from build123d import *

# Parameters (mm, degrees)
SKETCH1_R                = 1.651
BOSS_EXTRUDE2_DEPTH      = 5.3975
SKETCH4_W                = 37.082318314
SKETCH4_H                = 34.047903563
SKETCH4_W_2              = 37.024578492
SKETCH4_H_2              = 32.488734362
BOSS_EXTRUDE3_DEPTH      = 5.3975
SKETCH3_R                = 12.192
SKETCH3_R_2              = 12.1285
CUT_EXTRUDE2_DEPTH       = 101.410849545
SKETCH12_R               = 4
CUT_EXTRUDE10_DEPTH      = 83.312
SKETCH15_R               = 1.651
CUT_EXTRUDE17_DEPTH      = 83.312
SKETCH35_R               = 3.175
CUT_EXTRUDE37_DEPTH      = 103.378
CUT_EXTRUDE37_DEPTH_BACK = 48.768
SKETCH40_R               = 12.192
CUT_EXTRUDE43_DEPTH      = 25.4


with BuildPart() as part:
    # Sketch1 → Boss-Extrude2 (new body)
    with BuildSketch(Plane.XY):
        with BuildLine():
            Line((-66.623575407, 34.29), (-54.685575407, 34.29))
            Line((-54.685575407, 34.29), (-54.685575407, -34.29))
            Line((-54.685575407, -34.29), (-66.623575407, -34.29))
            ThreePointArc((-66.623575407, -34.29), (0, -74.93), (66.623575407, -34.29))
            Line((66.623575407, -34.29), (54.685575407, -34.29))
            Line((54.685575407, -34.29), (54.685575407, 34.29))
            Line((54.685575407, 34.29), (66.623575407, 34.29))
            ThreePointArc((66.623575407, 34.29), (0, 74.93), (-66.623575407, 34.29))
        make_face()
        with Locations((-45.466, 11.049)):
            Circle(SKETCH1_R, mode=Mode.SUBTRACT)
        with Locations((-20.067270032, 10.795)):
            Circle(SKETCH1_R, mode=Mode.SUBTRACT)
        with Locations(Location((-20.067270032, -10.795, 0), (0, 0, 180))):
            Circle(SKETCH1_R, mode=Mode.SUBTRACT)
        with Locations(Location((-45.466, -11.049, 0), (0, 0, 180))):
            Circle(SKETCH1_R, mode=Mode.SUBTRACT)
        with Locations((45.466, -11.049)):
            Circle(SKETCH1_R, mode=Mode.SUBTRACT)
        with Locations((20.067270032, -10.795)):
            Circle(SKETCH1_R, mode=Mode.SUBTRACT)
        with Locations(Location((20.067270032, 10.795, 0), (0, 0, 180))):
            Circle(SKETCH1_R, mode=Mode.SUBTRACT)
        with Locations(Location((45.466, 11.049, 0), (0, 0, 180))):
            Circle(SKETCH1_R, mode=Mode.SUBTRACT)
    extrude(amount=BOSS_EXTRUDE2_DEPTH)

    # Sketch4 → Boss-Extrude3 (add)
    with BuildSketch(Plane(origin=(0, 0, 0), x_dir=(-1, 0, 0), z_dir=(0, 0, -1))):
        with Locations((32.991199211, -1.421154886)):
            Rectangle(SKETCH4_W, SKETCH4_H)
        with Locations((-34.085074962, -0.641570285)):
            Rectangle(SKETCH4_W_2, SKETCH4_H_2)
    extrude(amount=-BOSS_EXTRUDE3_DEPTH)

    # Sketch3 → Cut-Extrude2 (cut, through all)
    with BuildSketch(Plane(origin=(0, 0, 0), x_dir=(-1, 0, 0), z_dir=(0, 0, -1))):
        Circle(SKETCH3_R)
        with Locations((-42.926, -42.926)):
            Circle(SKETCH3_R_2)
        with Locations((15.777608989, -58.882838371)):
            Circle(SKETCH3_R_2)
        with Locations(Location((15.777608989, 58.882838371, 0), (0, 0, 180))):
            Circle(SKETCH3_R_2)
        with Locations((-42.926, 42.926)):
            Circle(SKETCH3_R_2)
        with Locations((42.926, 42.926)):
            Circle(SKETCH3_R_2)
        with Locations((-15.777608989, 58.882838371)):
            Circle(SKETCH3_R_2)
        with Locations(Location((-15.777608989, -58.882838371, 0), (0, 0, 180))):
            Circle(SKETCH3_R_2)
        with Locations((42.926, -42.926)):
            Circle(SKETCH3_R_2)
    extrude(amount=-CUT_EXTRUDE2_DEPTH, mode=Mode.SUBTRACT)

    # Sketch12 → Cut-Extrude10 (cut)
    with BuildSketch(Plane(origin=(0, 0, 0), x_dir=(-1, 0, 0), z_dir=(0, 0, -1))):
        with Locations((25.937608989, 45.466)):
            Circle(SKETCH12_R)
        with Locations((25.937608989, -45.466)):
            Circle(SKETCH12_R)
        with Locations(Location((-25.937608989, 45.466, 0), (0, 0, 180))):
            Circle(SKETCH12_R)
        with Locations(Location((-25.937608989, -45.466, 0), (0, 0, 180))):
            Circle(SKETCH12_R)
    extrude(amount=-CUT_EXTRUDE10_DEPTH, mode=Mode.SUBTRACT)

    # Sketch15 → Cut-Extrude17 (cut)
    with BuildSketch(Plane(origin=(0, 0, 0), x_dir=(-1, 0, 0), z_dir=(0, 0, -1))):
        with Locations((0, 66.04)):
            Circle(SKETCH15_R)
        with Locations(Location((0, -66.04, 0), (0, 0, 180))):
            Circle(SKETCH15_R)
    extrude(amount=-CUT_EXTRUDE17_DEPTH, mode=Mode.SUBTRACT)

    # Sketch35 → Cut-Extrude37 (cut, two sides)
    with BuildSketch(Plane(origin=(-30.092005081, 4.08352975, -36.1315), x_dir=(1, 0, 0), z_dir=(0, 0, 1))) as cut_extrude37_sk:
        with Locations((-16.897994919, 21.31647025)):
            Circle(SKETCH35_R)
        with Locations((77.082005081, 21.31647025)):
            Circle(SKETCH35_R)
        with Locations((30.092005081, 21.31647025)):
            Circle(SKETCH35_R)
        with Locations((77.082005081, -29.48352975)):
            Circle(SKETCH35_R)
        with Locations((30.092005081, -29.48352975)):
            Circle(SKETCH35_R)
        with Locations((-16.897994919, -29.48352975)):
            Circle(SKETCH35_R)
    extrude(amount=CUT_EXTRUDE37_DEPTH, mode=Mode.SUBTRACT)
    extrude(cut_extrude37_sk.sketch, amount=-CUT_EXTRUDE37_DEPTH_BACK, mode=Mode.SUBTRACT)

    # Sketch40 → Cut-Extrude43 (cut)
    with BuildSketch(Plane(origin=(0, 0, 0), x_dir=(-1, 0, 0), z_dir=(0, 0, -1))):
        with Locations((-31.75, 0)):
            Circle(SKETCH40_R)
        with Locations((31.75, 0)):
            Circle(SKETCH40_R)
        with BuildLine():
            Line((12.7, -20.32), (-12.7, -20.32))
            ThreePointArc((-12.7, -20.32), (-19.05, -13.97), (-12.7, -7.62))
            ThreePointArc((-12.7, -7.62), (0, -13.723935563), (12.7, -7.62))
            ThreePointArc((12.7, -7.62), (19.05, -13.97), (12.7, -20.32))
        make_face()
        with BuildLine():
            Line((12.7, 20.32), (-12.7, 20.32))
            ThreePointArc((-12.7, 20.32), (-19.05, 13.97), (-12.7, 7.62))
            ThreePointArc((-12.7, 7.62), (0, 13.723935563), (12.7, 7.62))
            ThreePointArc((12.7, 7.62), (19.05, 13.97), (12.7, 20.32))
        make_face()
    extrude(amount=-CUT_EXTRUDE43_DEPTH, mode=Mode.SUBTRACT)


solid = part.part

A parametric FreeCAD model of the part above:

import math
import FreeCAD as App
import Part
import Sketcher

V = App.Vector
Q = App.Units.Quantity

doc = App.newDocument("Part")
body = doc.addObject("PartDesign::Body", "Body")

# Sketch on XY plane
sketch1 = body.newObject("Sketcher::SketchObject", "Sketch")
sketch1.AttachmentSupport = (doc.getObject("XY_Plane"), [""])
sketch1.MapMode = "FlatFace"
sketch1.addGeometry(Part.LineSegment(V(-66.6, 34.3, 0), V(-54.7, 34.3, 0)), False)
sketch1.addGeometry(Part.LineSegment(V(-54.7, 34.3, 0), V(-54.7, -34.3, 0)), False)
sketch1.addGeometry(Part.LineSegment(V(-54.7, -34.3, 0), V(-66.6, -34.3, 0)), False)
sketch1.addGeometry(Part.ArcOfCircle(Part.Circle(V(0, 0, 0), V(0, 0, 1), 74.9), math.radians(-153), math.radians(-27)), False)
sketch1.addGeometry(Part.LineSegment(V(66.6, -34.3, 0), V(54.7, -34.3, 0)), False)
sketch1.addGeometry(Part.LineSegment(V(54.7, -34.3, 0), V(54.7, 34.3, 0)), False)
sketch1.addGeometry(Part.LineSegment(V(54.7, 34.3, 0), V(66.6, 34.3, 0)), False)
sketch1.addGeometry(Part.ArcOfCircle(Part.Circle(V(0, 0, 0), V(0, 0, 1), 74.9), math.radians(27), math.radians(153)), False)
sketch1.addGeometry(Part.Circle(V(-45.5, -11, 0), V(0, 0, 1), 1.7), False)
sketch1.addGeometry(Part.Circle(V(-20.1, -10.8, 0), V(0, 0, 1), 1.7), False)
sketch1.addGeometry(Part.Circle(V(20.1, -10.8, 0), V(0, 0, 1), 1.7), False)
sketch1.addGeometry(Part.Circle(V(45.5, -11, 0), V(0, 0, 1), 1.7), False)
sketch1.addGeometry(Part.Circle(V(-45.5, 11, 0), V(0, 0, 1), 1.7), False)
sketch1.addGeometry(Part.Circle(V(-20.1, 10.8, 0), V(0, 0, 1), 1.7), False)
sketch1.addGeometry(Part.Circle(V(20.1, 10.8, 0), V(0, 0, 1), 1.7), False)
sketch1.addGeometry(Part.Circle(V(45.5, 11, 0), V(0, 0, 1), 1.7), False)
sketch1.addConstraint(Sketcher.Constraint("Coincident", 0, 2, 1, 1))
sketch1.addConstraint(Sketcher.Constraint("Coincident", 1, 2, 2, 1))
sketch1.addConstraint(Sketcher.Constraint("Coincident", 2, 2, 3, 1))
sketch1.addConstraint(Sketcher.Constraint("Coincident", 3, 2, 4, 1))
sketch1.addConstraint(Sketcher.Constraint("Coincident", 4, 2, 5, 1))
sketch1.addConstraint(Sketcher.Constraint("Coincident", 5, 2, 6, 1))
sketch1.addConstraint(Sketcher.Constraint("Coincident", 6, 2, 7, 1))
sketch1.addConstraint(Sketcher.Constraint("Coincident", 7, 2, 0, 1))
sketch1.addConstraint(Sketcher.Constraint("Horizontal", 0))
sketch1.addConstraint(Sketcher.Constraint("Vertical", 1))
sketch1.addConstraint(Sketcher.Constraint("Horizontal", 2))
sketch1.addConstraint(Sketcher.Constraint("Horizontal", 4))
sketch1.addConstraint(Sketcher.Constraint("Vertical", 5))
sketch1.addConstraint(Sketcher.Constraint("Horizontal", 6))
sketch1.addConstraint(Sketcher.Constraint("Coincident", 3, 3, -1, 1))
sketch1.addConstraint(Sketcher.Constraint("Coincident", 7, 3, -1, 1))
sketch1.addConstraint(Sketcher.Constraint("Equal", 3, 7))
sketch1.addConstraint(Sketcher.Constraint("Equal", 8, 9))
sketch1.addConstraint(Sketcher.Constraint("Equal", 9, 10))
sketch1.addConstraint(Sketcher.Constraint("Equal", 10, 11))
sketch1.addConstraint(Sketcher.Constraint("Equal", 11, 12))
sketch1.addConstraint(Sketcher.Constraint("Equal", 12, 13))
sketch1.addConstraint(Sketcher.Constraint("Equal", 13, 14))
sketch1.addConstraint(Sketcher.Constraint("Equal", 14, 15))
sketch1.addConstraint(Sketcher.Constraint("Symmetric", 11, 3, 12, 3, -1, 1))
sketch1.addConstraint(Sketcher.Constraint("Symmetric", 10, 3, 13, 3, -1, 1))
sketch1.addConstraint(Sketcher.Constraint("Symmetric", 9, 3, 14, 3, -1, 1))
sketch1.addConstraint(Sketcher.Constraint("Symmetric", 8, 3, 15, 3, -1, 1))
sketch1.addConstraint(Sketcher.Constraint("Symmetric", 0, 2, 4, 2, -1, 1))
sketch1.addConstraint(Sketcher.Constraint("Symmetric", 9, 3, 10, 3, -2))
sketch1.addConstraint(Sketcher.Constraint("Symmetric", 8, 3, 11, 3, -2))
sketch1.addConstraint(Sketcher.Constraint("Horizontal", 2, 2, 3, 2))
sketch1.addConstraint(Sketcher.Constraint("Horizontal", 0, 2, 5, 2))
sketch1.addConstraint(Sketcher.Constraint("Diameter", 8, Q("0.13 in")))
sketch1.addConstraint(Sketcher.Constraint("Radius", 3, Q("2.95 in")))
sketch1.addConstraint(Sketcher.Constraint("DistanceY", 1, 2, 1, 1, Q("2.7 in")))
sketch1.addConstraint(Sketcher.Constraint("DistanceX", 0, 1, 0, 2, Q("0.47 in")))
sketch1.addConstraint(Sketcher.Constraint("DistanceX", 8, 3, -1, 1, Q("1.79 in")))
sketch1.addConstraint(Sketcher.Constraint("DistanceY", 8, 3, 9, 3, Q("0.01 in")))
sketch1.addConstraint(Sketcher.Constraint("DistanceY", 8, 3, 12, 3, Q("0.87 in")))
sketch1.addConstraint(Sketcher.Constraint("DistanceX", 9, 3, 10, 3, Q("1.5801 in")))
pad1 = body.newObject("PartDesign::Pad", "Pad")
pad1.Profile = sketch1
pad1.Length = Q("0.2125 in")

# Sketch on XY plane
sketch2 = body.newObject("Sketcher::SketchObject", "Sketch001")
sketch2.AttachmentSupport = (doc.getObject("XY_Plane"), [""])
sketch2.MapMode = "FlatFace"
sketch2.addGeometry(Part.LineSegment(V(-14, 16, 0), V(-14, -18, 0)), False)
sketch2.addGeometry(Part.LineSegment(V(-14, -18, 0), V(-52, -18, 0)), False)
sketch2.addGeometry(Part.LineSegment(V(-52, -18, 0), V(-52, 16, 0)), False)
sketch2.addGeometry(Part.LineSegment(V(-52, 16, 0), V(-14, 16, 0)), False)
sketch2.addGeometry(Part.LineSegment(V(53, 16, 0), V(53, -17, 0)), False)
sketch2.addGeometry(Part.LineSegment(V(53, -17, 0), V(16, -17, 0)), False)
sketch2.addGeometry(Part.LineSegment(V(16, -17, 0), V(16, 16, 0)), False)
sketch2.addGeometry(Part.LineSegment(V(16, 16, 0), V(53, 16, 0)), False)
sketch2.addConstraint(Sketcher.Constraint("Coincident", 0, 2, 1, 1))
sketch2.addConstraint(Sketcher.Constraint("Coincident", 1, 2, 2, 1))
sketch2.addConstraint(Sketcher.Constraint("Coincident", 2, 2, 3, 1))
sketch2.addConstraint(Sketcher.Constraint("Coincident", 3, 2, 0, 1))
sketch2.addConstraint(Sketcher.Constraint("Coincident", 4, 2, 5, 1))
sketch2.addConstraint(Sketcher.Constraint("Coincident", 5, 2, 6, 1))
sketch2.addConstraint(Sketcher.Constraint("Coincident", 6, 2, 7, 1))
sketch2.addConstraint(Sketcher.Constraint("Coincident", 7, 2, 4, 1))
sketch2.addConstraint(Sketcher.Constraint("Vertical", 0))
sketch2.addConstraint(Sketcher.Constraint("Horizontal", 1))
sketch2.addConstraint(Sketcher.Constraint("Vertical", 2))
sketch2.addConstraint(Sketcher.Constraint("Horizontal", 3))
sketch2.addConstraint(Sketcher.Constraint("Vertical", 4))
sketch2.addConstraint(Sketcher.Constraint("Horizontal", 5))
sketch2.addConstraint(Sketcher.Constraint("Vertical", 6))
sketch2.addConstraint(Sketcher.Constraint("Horizontal", 7))
sketch2.addConstraint(Sketcher.Constraint("Horizontal", 3, 2, 6, 2))
sketch2.addConstraint(Sketcher.Constraint("DistanceX", 1, 2, 1, 1, Q("37.082318 mm")))
sketch2.addConstraint(Sketcher.Constraint("DistanceX", 5, 2, 5, 1, Q("37.024578 mm")))
sketch2.addConstraint(Sketcher.Constraint("DistanceY", 0, 2, 0, 1, Q("34.047904 mm")))
sketch2.addConstraint(Sketcher.Constraint("DistanceY", 4, 2, 4, 1, Q("32.488734 mm")))
sketch2.addConstraint(Sketcher.Constraint("DistanceX", 0, 2, -1, 1, Q("14.45004 mm")))
sketch2.addConstraint(Sketcher.Constraint("DistanceY", 0, 2, -1, 1, Q("18.445107 mm")))
sketch2.addConstraint(Sketcher.Constraint("DistanceX", -1, 1, 4, 2, Q("52.597364 mm")))
pad2 = body.newObject("PartDesign::Pad", "Pad001")
pad2.Profile = sketch2
pad2.Length = Q("0.2125 in")

# Sketch on XY plane
sketch3 = body.newObject("Sketcher::SketchObject", "Sketch002")
sketch3.AttachmentSupport = (doc.getObject("XY_Plane"), [""])
sketch3.MapMode = "FlatFace"
sketch3.addGeometry(Part.Circle(V(0, 0, 0), V(0, 0, 1), 12), False)
sketch3.addGeometry(Part.Circle(V(43, -43, 0), V(0, 0, 1), 12), False)
sketch3.addGeometry(Part.Circle(V(-16, -59, 0), V(0, 0, 1), 12), False)
sketch3.addGeometry(Part.Circle(V(-16, 59, 0), V(0, 0, 1), 12), False)
sketch3.addGeometry(Part.Circle(V(43, 43, 0), V(0, 0, 1), 12), False)
sketch3.addGeometry(Part.Circle(V(-43, 43, 0), V(0, 0, 1), 12), False)
sketch3.addGeometry(Part.Circle(V(16, 59, 0), V(0, 0, 1), 12), False)
sketch3.addGeometry(Part.Circle(V(16, -59, 0), V(0, 0, 1), 12), False)
sketch3.addGeometry(Part.Circle(V(-43, -43, 0), V(0, 0, 1), 12), False)
sketch3.addConstraint(Sketcher.Constraint("Coincident", 0, 3, -1, 1))
sketch3.addConstraint(Sketcher.Constraint("Equal", 1, 2))
sketch3.addConstraint(Sketcher.Constraint("Equal", 2, 3))
sketch3.addConstraint(Sketcher.Constraint("Equal", 3, 4))
sketch3.addConstraint(Sketcher.Constraint("Equal", 4, 5))
sketch3.addConstraint(Sketcher.Constraint("Equal", 5, 6))
sketch3.addConstraint(Sketcher.Constraint("Equal", 6, 7))
sketch3.addConstraint(Sketcher.Constraint("Equal", 7, 8))
sketch3.addConstraint(Sketcher.Constraint("Symmetric", 1, 3, 5, 3, -1, 1))
sketch3.addConstraint(Sketcher.Constraint("Symmetric", 2, 3, 6, 3, -1, 1))
sketch3.addConstraint(Sketcher.Constraint("Symmetric", 3, 3, 7, 3, -1, 1))
sketch3.addConstraint(Sketcher.Constraint("Symmetric", 4, 3, 8, 3, -1, 1))
sketch3.addConstraint(Sketcher.Constraint("Symmetric", 4, 3, 5, 3, -2))
sketch3.addConstraint(Sketcher.Constraint("Symmetric", 3, 3, 6, 3, -2))
sketch3.addConstraint(Sketcher.Constraint("Diameter", 0, Q("0.96 in")))
sketch3.addConstraint(Sketcher.Constraint("Diameter", 1, Q("0.955 in")))
sketch3.addConstraint(Sketcher.Constraint("DistanceX", -1, 1, 1, 3, Q("1.69 in")))
sketch3.addConstraint(Sketcher.Constraint("DistanceY", 1, 3, -1, 1, Q("1.69 in")))
sketch3.addConstraint(Sketcher.Constraint("DistanceX", 2, 3, -1, 1, Q("15.777609 mm")))
sketch3.addConstraint(Sketcher.Constraint("DistanceY", 2, 3, -1, 1, Q("58.882838 mm")))
pocket1 = body.newObject("PartDesign::Pocket", "Pocket")
pocket1.Profile = sketch3
pocket1.Type = "ThroughAll"
pocket1.Reversed = True

# Sketch on XY plane
sketch4 = body.newObject("Sketcher::SketchObject", "Sketch003")
sketch4.AttachmentSupport = (doc.getObject("XY_Plane"), [""])
sketch4.MapMode = "FlatFace"
sketch4.addGeometry(Part.Circle(V(-25.9, 45.5, 0), V(0, 0, 1), 4), False)
sketch4.addGeometry(Part.Circle(V(-25.9, -45.5, 0), V(0, 0, 1), 4), False)
sketch4.addGeometry(Part.Circle(V(25.9, 45.5, 0), V(0, 0, 1), 4), False)
sketch4.addGeometry(Part.Circle(V(25.9, -45.5, 0), V(0, 0, 1), 4), False)
sketch4.addConstraint(Sketcher.Constraint("Equal", 0, 1))
sketch4.addConstraint(Sketcher.Constraint("Equal", 1, 2))
sketch4.addConstraint(Sketcher.Constraint("Equal", 2, 3))
sketch4.addConstraint(Sketcher.Constraint("Symmetric", 1, 3, 2, 3, -1, 1))
sketch4.addConstraint(Sketcher.Constraint("Symmetric", 0, 3, 3, 3, -1, 1))
sketch4.addConstraint(Sketcher.Constraint("Symmetric", 0, 3, 2, 3, -2))
sketch4.addConstraint(Sketcher.Constraint("Diameter", 0, Q("8 mm")))
sketch4.addConstraint(Sketcher.Constraint("DistanceY", -1, 1, 0, 3, Q("1.79 in")))
sketch4.addConstraint(Sketcher.Constraint("DistanceX", 0, 3, -1, 1, Q("25.937609 mm")))
pocket2 = body.newObject("PartDesign::Pocket", "Pocket001")
pocket2.Profile = sketch4
pocket2.Length = Q("3.28 in")
pocket2.Reversed = True

# Sketch on XY plane
sketch5 = body.newObject("Sketcher::SketchObject", "Sketch004")
sketch5.AttachmentSupport = (doc.getObject("XY_Plane"), [""])
sketch5.MapMode = "FlatFace"
sketch5.addGeometry(Part.Circle(V(0, 66, 0), V(0, 0, 1), 1.7), False)
sketch5.addGeometry(Part.Circle(V(0, -66, 0), V(0, 0, 1), 1.7), False)
sketch5.addConstraint(Sketcher.Constraint("Equal", 0, 1))
sketch5.addConstraint(Sketcher.Constraint("Symmetric", 0, 3, 1, 3, -1, 1))
sketch5.addConstraint(Sketcher.Constraint("PointOnObject", 0, 3, -2))
sketch5.addConstraint(Sketcher.Constraint("Diameter", 0, Q("0.13 in")))
sketch5.addConstraint(Sketcher.Constraint("DistanceY", -1, 1, 0, 3, Q("2.6 in")))
pocket3 = body.newObject("PartDesign::Pocket", "Pocket002")
pocket3.Profile = sketch5
pocket3.Length = Q("3.28 in")
pocket3.Reversed = True

# Sketch on XY plane
sketch6 = body.newObject("Sketcher::SketchObject", "Sketch005")
sketch6.AttachmentSupport = (doc.getObject("XY_Plane"), [""])
sketch6.MapMode = "FlatFace"
sketch6.AttachmentOffset = App.Placement(V(0, 0, -1.4225 * 25.4), App.Rotation())
sketch6.addGeometry(Part.Circle(V(-47, 25.4, 0), V(0, 0, 1), 3.2), False)
sketch6.addGeometry(Part.Circle(V(47, 25.4, 0), V(0, 0, 1), 3.2), False)
sketch6.addGeometry(Part.Circle(V(0, 25.4, 0), V(0, 0, 1), 3.2), False)
sketch6.addGeometry(Part.Circle(V(47, -25.4, 0), V(0, 0, 1), 3.2), False)
sketch6.addGeometry(Part.Circle(V(0, -25.4, 0), V(0, 0, 1), 3.2), False)
sketch6.addGeometry(Part.Circle(V(-47, -25.4, 0), V(0, 0, 1), 3.2), False)
sketch6.addConstraint(Sketcher.Constraint("Equal", 0, 1))
sketch6.addConstraint(Sketcher.Constraint("Equal", 1, 2))
sketch6.addConstraint(Sketcher.Constraint("Equal", 2, 3))
sketch6.addConstraint(Sketcher.Constraint("Equal", 3, 4))
sketch6.addConstraint(Sketcher.Constraint("Equal", 4, 5))
sketch6.addConstraint(Sketcher.Constraint("Symmetric", 0, 3, 3, 3, -1, 1))
sketch6.addConstraint(Sketcher.Constraint("Symmetric", 2, 3, 4, 3, -1, 1))
sketch6.addConstraint(Sketcher.Constraint("Symmetric", 1, 3, 5, 3, -1, 1))
sketch6.addConstraint(Sketcher.Constraint("Symmetric", 0, 3, 1, 3, -2))
sketch6.addConstraint(Sketcher.Constraint("PointOnObject", 2, 3, -2))
sketch6.addConstraint(Sketcher.Constraint("Horizontal", 1, 3, 2, 3))
sketch6.addConstraint(Sketcher.Constraint("Diameter", 0, Q("0.25 in")))
sketch6.addConstraint(Sketcher.Constraint("DistanceY", -1, 1, 0, 3, Q("1 in")))
sketch6.addConstraint(Sketcher.Constraint("DistanceX", 0, 3, 1, 3, Q("3.7 in")))
pocket4 = body.newObject("PartDesign::Pocket", "Pocket003")
pocket4.Profile = sketch6
pocket4.Type = "ThroughAll"
pocket4.Midplane = True

# Sketch on XY plane
sketch7 = body.newObject("Sketcher::SketchObject", "Sketch006")
sketch7.AttachmentSupport = (doc.getObject("XY_Plane"), [""])
sketch7.MapMode = "FlatFace"
sketch7.addGeometry(Part.Circle(V(32, 0, 0), V(0, 0, 1), 12), False)
sketch7.addGeometry(Part.Circle(V(-32, 0, 0), V(0, 0, 1), 12), False)
sketch7.addGeometry(Part.LineSegment(V(13, -20, 0), V(-13, -20, 0)), False)
sketch7.addGeometry(Part.ArcOfCircle(Part.Circle(V(-13, -14, 0), V(0, 0, 1), 6), math.radians(90), math.radians(270)), False)
sketch7.addGeometry(Part.ArcOfCircle(Part.Circle(V(0, 3, 0), V(0, 0, 1), 16), math.radians(-141), math.radians(-39)), False)
sketch7.addGeometry(Part.ArcOfCircle(Part.Circle(V(13, -14, 0), V(0, 0, 1), 6), math.radians(-90), math.radians(90)), False)
sketch7.addGeometry(Part.LineSegment(V(-13, 20, 0), V(13, 20, 0)), False)
sketch7.addGeometry(Part.ArcOfCircle(Part.Circle(V(13, 14, 0), V(0, 0, 1), 6), math.radians(-90), math.radians(90)), False)
sketch7.addGeometry(Part.ArcOfCircle(Part.Circle(V(0, -3, 0), V(0, 0, 1), 16), math.radians(39), math.radians(141)), False)
sketch7.addGeometry(Part.ArcOfCircle(Part.Circle(V(-13, 14, 0), V(0, 0, 1), 6), math.radians(90), math.radians(270)), False)
sketch7.addConstraint(Sketcher.Constraint("Tangent", 2, 2, 3, 2))
sketch7.addConstraint(Sketcher.Constraint("Coincident", 3, 1, 4, 1))
sketch7.addConstraint(Sketcher.Constraint("Coincident", 4, 2, 5, 2))
sketch7.addConstraint(Sketcher.Constraint("Tangent", 5, 1, 2, 1))
sketch7.addConstraint(Sketcher.Constraint("Tangent", 6, 2, 7, 2))
sketch7.addConstraint(Sketcher.Constraint("Coincident", 7, 1, 8, 1))
sketch7.addConstraint(Sketcher.Constraint("Coincident", 8, 2, 9, 2))
sketch7.addConstraint(Sketcher.Constraint("Tangent", 9, 1, 6, 1))
sketch7.addConstraint(Sketcher.Constraint("Horizontal", 2))
sketch7.addConstraint(Sketcher.Constraint("Horizontal", 6))
sketch7.addConstraint(Sketcher.Constraint("Equal", 0, 1))
sketch7.addConstraint(Sketcher.Constraint("Equal", 3, 5))
sketch7.addConstraint(Sketcher.Constraint("Equal", 5, 7))
sketch7.addConstraint(Sketcher.Constraint("Equal", 4, 8))
sketch7.addConstraint(Sketcher.Constraint("Equal", 7, 9))
sketch7.addConstraint(Sketcher.Constraint("Symmetric", 0, 3, 1, 3, -1, 1))
sketch7.addConstraint(Sketcher.Constraint("Symmetric", 3, 3, 7, 3, -1, 1))
sketch7.addConstraint(Sketcher.Constraint("Symmetric", 4, 3, 8, 3, -1, 1))
sketch7.addConstraint(Sketcher.Constraint("PointOnObject", 0, 3, -1))
sketch7.addConstraint(Sketcher.Constraint("PointOnObject", 4, 3, -2))
sketch7.addConstraint(Sketcher.Constraint("Vertical", 5, 3, 7, 3))
sketch7.addConstraint(Sketcher.Constraint("Vertical", 3, 3, 9, 3))
sketch7.addConstraint(Sketcher.Constraint("Vertical", 2, 2, 3, 1))
sketch7.addConstraint(Sketcher.Constraint("Diameter", 0, Q("0.96 in")))
sketch7.addConstraint(Sketcher.Constraint("DistanceX", 2, 2, 2, 1, Q("1 in")))
sketch7.addConstraint(Sketcher.Constraint("Radius", 3, Q("0.25 in")))
sketch7.addConstraint(Sketcher.Constraint("DistanceY", -1, 1, 4, 3, Q("0.1 in")))
sketch7.addConstraint(Sketcher.Constraint("DistanceY", 2, 2, -1, 1, Q("0.8 in")))
sketch7.addConstraint(Sketcher.Constraint("DistanceX", 1, 3, 0, 3, Q("2.5 in")))
pocket5 = body.newObject("PartDesign::Pocket", "Pocket004")
pocket5.Profile = sketch7
pocket5.Length = Q("1 in")
pocket5.Reversed = True

doc.recompute()
